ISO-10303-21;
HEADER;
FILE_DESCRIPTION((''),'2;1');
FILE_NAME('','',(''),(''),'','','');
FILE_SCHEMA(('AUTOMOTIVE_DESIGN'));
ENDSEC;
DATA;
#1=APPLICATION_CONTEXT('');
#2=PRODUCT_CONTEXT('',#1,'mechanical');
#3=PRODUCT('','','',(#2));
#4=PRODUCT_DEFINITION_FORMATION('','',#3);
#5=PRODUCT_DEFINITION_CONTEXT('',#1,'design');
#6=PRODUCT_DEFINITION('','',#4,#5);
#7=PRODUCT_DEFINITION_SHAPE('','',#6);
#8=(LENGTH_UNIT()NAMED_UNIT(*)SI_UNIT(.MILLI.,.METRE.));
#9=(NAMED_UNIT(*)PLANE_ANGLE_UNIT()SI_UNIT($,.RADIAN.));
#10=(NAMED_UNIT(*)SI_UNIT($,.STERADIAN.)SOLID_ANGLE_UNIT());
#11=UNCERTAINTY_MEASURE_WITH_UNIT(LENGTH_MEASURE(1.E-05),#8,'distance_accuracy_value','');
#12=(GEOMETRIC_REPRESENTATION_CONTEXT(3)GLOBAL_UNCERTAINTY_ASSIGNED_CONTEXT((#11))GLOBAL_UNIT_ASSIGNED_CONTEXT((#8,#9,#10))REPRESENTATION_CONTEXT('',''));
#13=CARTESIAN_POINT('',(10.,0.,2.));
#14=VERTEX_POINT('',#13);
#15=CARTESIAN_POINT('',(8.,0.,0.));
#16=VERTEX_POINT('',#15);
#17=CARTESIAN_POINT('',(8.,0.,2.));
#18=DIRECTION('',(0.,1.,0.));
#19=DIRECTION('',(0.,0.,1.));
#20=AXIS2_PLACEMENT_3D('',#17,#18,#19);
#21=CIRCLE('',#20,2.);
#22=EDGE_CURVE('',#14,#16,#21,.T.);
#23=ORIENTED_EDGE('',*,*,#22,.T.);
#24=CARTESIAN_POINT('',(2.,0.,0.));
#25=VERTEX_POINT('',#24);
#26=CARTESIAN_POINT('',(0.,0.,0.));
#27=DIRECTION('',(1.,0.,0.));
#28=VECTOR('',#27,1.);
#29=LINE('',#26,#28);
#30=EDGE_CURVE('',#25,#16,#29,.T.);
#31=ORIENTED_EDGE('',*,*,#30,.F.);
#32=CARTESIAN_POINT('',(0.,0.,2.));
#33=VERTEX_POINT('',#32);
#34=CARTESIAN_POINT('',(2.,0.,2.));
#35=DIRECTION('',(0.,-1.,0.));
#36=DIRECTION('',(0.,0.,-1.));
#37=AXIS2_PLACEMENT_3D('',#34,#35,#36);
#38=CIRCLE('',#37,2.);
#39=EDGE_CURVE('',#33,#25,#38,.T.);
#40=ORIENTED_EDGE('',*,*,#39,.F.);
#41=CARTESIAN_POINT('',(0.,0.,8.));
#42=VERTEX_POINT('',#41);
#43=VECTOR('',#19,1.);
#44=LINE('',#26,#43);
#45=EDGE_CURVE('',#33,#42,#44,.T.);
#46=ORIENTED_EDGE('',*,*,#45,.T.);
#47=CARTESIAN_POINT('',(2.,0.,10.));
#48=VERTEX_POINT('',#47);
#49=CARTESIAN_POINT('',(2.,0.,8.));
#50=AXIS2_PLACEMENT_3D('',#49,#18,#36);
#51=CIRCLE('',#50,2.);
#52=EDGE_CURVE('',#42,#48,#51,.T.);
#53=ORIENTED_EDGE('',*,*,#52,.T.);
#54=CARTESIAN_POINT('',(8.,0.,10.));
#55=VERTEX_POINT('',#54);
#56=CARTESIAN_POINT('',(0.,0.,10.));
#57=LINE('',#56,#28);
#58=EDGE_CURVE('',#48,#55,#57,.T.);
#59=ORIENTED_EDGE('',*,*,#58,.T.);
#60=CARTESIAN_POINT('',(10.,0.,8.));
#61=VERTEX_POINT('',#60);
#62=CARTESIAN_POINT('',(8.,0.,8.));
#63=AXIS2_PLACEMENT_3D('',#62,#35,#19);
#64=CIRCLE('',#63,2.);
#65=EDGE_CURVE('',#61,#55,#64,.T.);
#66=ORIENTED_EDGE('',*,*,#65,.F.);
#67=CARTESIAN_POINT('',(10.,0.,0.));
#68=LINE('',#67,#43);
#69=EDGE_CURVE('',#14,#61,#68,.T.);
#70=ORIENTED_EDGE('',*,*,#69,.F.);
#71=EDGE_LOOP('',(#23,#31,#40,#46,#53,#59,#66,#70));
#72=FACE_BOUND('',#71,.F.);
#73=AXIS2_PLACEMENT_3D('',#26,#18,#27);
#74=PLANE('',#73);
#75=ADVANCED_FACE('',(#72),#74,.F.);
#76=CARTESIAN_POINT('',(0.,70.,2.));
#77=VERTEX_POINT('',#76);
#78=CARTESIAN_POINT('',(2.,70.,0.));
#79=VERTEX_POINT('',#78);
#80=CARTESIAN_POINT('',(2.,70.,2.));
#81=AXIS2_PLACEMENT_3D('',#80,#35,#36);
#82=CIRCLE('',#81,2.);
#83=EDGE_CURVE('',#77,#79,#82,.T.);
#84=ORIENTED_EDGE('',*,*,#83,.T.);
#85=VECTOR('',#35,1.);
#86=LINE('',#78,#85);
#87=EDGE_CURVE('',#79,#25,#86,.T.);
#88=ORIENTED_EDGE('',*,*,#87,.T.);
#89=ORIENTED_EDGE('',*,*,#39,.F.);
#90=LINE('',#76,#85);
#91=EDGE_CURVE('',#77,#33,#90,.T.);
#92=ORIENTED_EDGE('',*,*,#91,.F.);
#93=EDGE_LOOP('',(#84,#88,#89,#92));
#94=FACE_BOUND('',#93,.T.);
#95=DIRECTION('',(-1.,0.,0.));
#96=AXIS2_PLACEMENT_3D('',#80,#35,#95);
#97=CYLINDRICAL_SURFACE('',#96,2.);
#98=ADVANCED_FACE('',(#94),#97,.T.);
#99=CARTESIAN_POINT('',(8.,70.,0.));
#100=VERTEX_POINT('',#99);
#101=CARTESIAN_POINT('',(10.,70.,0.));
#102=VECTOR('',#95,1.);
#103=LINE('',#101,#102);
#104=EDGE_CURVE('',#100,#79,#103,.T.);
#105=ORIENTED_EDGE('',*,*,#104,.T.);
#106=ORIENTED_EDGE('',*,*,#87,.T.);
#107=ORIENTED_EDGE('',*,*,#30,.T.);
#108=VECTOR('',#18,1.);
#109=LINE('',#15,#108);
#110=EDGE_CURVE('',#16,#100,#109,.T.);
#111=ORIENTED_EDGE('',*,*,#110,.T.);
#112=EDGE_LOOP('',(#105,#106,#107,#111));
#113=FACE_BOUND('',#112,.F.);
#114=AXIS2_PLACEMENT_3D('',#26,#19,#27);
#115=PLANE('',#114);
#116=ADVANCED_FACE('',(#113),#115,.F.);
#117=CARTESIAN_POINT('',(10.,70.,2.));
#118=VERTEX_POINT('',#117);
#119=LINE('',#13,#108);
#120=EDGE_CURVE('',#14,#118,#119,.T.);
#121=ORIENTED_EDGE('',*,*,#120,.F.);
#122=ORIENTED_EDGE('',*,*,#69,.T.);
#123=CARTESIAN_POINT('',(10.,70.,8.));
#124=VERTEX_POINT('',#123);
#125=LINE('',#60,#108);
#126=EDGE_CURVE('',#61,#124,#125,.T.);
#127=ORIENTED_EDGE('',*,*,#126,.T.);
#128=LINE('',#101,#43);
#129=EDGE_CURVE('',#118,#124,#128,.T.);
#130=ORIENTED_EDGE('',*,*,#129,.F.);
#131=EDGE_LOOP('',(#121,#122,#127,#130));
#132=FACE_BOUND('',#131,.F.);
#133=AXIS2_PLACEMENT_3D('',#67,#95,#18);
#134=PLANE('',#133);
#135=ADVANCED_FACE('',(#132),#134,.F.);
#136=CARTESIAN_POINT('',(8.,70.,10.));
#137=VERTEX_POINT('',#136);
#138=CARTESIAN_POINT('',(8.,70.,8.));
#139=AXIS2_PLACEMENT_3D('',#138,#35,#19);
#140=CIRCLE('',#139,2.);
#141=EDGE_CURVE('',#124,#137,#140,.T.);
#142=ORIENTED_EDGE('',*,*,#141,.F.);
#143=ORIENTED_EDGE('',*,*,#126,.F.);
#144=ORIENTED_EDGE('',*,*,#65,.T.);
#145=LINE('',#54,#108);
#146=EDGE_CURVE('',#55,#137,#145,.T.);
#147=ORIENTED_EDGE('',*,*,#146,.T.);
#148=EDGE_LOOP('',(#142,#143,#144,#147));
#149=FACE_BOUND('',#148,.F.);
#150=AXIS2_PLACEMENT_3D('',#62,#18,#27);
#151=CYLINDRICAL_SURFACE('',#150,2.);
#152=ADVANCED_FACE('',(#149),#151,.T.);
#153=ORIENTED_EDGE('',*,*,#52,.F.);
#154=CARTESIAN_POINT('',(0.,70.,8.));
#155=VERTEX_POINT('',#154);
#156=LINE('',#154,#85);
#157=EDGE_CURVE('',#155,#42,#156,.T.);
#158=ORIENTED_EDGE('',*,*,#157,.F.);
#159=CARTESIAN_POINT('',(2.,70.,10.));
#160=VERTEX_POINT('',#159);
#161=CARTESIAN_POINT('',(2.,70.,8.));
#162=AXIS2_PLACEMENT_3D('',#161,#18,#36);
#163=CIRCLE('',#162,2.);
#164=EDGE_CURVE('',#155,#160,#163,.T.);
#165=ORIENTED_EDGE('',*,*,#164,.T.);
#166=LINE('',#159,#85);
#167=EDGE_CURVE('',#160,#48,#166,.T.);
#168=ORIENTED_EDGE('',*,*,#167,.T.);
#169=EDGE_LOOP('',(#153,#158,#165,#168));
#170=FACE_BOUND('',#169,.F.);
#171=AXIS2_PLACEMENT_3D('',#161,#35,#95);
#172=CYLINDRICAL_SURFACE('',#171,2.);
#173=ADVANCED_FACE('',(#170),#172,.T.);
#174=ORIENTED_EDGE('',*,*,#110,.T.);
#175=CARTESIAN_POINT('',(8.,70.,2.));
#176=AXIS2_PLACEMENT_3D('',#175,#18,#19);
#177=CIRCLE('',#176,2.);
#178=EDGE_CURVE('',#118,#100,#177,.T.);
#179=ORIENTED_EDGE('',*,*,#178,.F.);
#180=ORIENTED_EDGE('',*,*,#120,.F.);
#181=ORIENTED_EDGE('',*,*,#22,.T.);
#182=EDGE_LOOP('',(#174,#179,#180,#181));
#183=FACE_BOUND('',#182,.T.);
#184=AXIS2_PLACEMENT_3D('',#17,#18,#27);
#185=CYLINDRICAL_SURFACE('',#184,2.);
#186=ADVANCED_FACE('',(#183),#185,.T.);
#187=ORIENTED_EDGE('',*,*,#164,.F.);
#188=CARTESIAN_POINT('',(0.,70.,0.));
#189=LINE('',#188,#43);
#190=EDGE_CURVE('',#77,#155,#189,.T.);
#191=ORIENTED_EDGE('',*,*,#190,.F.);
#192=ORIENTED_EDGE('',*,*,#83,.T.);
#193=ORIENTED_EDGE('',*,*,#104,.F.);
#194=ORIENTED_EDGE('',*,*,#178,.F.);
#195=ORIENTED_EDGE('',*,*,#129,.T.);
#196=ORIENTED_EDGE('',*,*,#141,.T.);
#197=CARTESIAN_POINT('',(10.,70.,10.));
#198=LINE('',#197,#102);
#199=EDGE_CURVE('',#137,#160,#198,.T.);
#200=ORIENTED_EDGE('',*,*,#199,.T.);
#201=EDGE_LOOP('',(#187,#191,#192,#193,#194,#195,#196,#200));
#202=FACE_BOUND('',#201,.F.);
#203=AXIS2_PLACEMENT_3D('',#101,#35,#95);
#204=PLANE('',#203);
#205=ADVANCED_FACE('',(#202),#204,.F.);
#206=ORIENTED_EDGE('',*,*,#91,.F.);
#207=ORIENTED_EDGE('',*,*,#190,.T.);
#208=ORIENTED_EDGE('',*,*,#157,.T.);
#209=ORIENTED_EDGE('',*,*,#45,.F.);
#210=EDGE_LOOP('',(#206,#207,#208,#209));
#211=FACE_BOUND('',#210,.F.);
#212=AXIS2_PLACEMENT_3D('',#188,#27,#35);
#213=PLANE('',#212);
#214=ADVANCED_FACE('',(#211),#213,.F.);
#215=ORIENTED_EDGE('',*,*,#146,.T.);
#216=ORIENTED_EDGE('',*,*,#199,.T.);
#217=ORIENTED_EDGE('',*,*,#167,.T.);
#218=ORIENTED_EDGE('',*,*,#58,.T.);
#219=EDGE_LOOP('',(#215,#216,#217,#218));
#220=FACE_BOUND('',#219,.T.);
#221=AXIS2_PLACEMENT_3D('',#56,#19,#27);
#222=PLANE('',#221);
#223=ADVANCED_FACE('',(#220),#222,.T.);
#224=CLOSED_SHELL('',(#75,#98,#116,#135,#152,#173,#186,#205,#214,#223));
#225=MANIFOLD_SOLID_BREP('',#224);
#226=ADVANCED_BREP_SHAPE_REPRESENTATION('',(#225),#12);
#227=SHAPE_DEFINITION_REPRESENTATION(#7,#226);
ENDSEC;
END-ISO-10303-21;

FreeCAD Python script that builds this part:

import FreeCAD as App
import Part
import Sketcher
from FreeCAD import Vector
Q = App.Units.Quantity


def edges_at(feature, points):
    """Names of the edges that pass closest to the given points."""
    edges = feature.Shape.Edges
    near = lambda p: min(range(len(edges)), key=lambda i: edges[i].distToShape(Part.Vertex(*p))[0])
    return sorted({f"Edge{near(p) + 1}" for p in points})


def add_polygon(sketch, points):
    """Adds a closed chain of lines whose ends are joined by coincident constraints."""
    first, n = sketch.GeometryCount, len(points)
    for a, b in zip(points, points[1:] + points[:1]):
        sketch.addGeometry(Part.LineSegment(App.Vector(*a, 0), App.Vector(*b, 0)), False)
    for i in range(n):
        sketch.addConstraint(Sketcher.Constraint("Coincident", first + i, 2, first + (i + 1) % n, 1))

doc = App.newDocument("Part")
body = doc.addObject("PartDesign::Body", "Body")

# Sketch on XY plane
sketch1 = doc.addObject("Sketcher::SketchObject", "Sketch")
body.addObject(sketch1)
sketch1.AttachmentSupport = (doc.XY_Plane, [""])
sketch1.MapMode = "FlatFace"
add_polygon(sketch1, [(0, 70), (0, 0), (10, 0), (10, 70)])  # lines 0-3
sketch1.addConstraint([
    Sketcher.Constraint("Vertical", 0),
    Sketcher.Constraint("Horizontal", 1),
    Sketcher.Constraint("Vertical", 2),
    Sketcher.Constraint("Horizontal", 3),
    Sketcher.Constraint("Coincident", 0, 2, -1, 1),
    Sketcher.Constraint("DistanceX", 1, 1, 1, 2, Q("10 mm")),
    Sketcher.Constraint("DistanceY", 0, 2, 0, 1, Q("70 mm")),
])
pad1 = doc.addObject("PartDesign::Pad", "Pad")
body.addObject(pad1)
pad1.Profile = sketch1
pad1.Length = 10
doc.recompute()

fillet = doc.addObject("PartDesign::Fillet", "Fillet")
body.addObject(fillet)
fillet.Base = (pad1, edges_at(pad1, [
    (10, 35, 10),
    (0, 35, 10),
    (10, 35, 0),
    (0, 35, 0),
]))
fillet.Radius = 2

doc.recompute()
